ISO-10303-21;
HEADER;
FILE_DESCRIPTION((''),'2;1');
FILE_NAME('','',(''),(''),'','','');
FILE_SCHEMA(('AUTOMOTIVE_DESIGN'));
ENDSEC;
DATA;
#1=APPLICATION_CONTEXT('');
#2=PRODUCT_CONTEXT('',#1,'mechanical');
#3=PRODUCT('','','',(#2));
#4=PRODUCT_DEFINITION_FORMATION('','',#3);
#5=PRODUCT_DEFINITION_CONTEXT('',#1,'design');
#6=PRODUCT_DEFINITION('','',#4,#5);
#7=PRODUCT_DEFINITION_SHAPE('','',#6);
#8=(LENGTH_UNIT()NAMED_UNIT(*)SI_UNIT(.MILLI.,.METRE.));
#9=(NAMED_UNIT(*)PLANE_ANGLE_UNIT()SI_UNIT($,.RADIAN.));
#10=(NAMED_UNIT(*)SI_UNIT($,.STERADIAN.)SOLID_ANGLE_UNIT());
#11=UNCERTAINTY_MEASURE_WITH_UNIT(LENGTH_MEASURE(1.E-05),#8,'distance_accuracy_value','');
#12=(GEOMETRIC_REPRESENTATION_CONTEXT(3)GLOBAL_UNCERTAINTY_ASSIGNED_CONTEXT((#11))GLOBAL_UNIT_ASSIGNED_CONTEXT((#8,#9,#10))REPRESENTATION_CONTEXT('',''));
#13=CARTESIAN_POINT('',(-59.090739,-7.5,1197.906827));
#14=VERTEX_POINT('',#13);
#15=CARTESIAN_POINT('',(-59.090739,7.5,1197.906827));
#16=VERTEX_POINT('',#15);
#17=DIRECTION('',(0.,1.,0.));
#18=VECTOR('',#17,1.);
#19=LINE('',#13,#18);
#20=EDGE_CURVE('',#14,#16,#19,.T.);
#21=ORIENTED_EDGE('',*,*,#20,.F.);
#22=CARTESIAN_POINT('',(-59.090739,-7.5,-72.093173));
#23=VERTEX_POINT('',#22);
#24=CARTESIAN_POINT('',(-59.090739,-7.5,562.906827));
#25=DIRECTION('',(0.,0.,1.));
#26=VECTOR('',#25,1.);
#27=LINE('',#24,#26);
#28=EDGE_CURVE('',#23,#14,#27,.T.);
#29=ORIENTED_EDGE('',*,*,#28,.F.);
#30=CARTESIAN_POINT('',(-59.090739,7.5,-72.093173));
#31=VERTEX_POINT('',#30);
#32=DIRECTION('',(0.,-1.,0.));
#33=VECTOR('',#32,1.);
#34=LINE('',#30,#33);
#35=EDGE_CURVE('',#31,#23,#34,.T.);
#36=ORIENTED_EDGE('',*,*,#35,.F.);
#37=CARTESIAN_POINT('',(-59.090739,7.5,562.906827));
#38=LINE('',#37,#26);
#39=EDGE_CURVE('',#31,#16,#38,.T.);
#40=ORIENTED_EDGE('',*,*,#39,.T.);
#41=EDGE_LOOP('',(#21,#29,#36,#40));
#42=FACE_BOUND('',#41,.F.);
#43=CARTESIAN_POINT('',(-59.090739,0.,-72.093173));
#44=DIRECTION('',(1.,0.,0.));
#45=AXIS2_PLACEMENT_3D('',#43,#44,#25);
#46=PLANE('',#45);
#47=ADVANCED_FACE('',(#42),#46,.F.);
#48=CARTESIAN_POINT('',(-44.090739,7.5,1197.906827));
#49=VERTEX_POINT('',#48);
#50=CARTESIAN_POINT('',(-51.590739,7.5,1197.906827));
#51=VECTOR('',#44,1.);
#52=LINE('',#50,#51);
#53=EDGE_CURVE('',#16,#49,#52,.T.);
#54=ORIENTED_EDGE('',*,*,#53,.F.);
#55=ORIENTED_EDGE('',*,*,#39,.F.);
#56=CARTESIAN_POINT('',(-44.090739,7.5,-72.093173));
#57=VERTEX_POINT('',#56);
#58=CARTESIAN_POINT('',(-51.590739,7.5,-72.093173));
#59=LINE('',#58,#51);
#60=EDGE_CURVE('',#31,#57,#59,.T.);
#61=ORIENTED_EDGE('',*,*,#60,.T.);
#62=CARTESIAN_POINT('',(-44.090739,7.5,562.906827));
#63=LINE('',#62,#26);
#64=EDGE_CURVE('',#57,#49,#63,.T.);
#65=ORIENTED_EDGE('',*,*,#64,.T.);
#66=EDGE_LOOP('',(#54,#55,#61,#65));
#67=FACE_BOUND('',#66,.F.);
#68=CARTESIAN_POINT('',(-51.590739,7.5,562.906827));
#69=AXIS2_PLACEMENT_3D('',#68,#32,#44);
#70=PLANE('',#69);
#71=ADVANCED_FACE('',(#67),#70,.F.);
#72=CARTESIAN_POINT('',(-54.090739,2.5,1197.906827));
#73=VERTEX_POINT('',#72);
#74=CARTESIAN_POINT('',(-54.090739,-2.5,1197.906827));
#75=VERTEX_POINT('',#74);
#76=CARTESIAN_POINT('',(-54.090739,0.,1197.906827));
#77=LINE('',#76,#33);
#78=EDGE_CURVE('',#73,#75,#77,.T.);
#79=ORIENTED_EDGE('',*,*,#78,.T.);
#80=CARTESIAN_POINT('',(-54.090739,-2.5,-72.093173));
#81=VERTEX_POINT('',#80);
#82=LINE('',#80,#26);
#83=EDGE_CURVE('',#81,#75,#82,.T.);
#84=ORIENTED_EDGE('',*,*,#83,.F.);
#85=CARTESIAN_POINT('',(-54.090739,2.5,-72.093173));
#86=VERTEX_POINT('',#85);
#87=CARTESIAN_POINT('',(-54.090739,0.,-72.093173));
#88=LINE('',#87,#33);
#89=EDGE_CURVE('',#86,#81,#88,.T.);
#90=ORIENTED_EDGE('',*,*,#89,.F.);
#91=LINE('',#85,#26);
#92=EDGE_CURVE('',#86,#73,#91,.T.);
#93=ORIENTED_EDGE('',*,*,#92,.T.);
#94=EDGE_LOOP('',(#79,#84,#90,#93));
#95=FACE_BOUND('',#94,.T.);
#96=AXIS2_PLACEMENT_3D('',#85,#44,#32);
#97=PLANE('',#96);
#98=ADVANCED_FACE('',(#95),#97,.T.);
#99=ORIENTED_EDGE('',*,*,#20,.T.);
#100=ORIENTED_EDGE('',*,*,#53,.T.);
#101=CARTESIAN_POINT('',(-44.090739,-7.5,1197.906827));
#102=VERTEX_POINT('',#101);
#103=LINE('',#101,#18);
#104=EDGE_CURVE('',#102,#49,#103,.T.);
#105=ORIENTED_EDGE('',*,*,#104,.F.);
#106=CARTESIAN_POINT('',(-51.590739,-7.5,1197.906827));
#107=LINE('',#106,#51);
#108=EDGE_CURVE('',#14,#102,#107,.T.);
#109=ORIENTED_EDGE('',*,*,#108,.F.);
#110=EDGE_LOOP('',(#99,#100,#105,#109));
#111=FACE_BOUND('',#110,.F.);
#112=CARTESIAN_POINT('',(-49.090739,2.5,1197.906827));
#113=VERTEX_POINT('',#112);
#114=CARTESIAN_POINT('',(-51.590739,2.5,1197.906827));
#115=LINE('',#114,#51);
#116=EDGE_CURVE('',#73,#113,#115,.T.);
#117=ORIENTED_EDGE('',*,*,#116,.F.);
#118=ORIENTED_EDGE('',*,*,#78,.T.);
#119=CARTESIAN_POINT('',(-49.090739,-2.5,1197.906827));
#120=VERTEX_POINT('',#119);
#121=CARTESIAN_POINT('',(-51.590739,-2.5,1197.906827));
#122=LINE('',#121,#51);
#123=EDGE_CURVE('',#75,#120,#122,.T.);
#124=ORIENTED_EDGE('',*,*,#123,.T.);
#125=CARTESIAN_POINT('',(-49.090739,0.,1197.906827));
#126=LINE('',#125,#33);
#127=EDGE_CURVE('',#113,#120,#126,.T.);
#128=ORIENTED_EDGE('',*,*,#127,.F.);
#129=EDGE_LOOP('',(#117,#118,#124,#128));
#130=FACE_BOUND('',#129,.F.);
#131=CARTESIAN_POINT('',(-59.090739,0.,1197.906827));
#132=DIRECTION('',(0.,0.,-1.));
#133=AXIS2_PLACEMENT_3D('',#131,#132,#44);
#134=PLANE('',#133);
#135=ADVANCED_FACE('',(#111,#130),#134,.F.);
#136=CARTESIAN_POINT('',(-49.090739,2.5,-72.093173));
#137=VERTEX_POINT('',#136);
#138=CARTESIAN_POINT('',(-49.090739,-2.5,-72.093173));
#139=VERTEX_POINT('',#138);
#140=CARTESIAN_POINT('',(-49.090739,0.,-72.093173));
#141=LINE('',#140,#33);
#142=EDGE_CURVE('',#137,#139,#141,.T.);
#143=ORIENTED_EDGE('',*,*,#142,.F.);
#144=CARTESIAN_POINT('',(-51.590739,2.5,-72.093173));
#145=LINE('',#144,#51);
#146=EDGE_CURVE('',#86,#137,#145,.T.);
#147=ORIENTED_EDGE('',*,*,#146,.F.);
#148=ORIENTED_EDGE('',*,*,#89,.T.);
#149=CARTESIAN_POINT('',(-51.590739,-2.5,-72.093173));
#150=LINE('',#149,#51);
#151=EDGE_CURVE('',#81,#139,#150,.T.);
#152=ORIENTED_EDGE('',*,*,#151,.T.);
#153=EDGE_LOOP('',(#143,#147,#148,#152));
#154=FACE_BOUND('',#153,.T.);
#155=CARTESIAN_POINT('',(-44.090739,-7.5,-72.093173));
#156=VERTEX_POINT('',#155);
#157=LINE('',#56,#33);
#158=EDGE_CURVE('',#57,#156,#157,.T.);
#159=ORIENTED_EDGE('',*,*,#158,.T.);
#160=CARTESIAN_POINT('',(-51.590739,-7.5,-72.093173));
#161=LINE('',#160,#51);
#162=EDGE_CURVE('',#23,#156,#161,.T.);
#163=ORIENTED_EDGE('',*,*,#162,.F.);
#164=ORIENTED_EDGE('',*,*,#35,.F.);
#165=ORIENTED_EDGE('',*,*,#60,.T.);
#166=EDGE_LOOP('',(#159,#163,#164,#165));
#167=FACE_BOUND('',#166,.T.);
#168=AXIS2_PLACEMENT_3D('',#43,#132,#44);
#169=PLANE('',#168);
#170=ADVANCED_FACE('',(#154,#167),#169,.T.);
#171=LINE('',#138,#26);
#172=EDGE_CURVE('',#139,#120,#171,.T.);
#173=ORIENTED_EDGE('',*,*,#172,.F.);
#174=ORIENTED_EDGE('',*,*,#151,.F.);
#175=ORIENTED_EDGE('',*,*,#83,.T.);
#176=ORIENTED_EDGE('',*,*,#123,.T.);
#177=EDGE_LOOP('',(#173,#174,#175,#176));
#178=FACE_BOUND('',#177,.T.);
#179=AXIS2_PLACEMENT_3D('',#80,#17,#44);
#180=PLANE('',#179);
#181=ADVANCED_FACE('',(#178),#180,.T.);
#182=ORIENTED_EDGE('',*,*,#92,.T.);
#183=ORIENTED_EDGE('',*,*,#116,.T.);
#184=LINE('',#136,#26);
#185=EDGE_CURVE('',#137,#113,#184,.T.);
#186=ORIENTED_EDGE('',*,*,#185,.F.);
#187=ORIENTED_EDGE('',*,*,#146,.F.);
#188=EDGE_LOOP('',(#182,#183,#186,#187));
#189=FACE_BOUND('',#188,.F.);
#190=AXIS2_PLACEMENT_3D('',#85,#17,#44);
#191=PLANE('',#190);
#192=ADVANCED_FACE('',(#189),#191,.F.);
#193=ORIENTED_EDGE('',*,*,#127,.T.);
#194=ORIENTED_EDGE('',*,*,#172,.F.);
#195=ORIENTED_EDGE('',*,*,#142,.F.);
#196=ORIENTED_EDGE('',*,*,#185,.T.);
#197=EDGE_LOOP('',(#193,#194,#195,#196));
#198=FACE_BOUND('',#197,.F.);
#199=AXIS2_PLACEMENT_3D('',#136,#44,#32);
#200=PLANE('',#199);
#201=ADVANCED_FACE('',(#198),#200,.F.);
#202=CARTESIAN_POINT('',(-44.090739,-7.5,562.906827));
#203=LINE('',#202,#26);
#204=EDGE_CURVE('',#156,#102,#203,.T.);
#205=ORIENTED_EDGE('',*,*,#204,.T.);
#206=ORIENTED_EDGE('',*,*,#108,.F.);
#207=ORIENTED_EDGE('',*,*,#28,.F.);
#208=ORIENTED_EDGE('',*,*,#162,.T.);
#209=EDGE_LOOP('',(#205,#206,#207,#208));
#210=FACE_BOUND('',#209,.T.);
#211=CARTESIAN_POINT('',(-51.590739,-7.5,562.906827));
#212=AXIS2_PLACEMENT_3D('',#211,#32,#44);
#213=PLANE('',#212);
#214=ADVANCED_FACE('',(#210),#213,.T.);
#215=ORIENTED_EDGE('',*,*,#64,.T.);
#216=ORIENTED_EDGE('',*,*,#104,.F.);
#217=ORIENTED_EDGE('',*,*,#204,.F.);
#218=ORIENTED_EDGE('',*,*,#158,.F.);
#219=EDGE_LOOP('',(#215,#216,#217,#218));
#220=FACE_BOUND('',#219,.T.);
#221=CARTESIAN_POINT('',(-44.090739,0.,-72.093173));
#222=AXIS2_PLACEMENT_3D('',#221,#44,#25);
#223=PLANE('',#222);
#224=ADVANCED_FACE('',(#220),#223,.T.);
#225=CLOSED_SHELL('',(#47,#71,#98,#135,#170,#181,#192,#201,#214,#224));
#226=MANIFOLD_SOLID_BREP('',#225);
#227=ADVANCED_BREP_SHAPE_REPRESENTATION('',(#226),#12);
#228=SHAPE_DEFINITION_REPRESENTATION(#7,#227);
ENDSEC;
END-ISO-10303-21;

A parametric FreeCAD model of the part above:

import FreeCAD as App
import Part
import Sketcher

V = App.Vector


def add_polygon(sketch, points):
    """Adds a closed chain of lines whose ends are joined by coincident constraints."""
    first, n = sketch.GeometryCount, len(points)
    for a, b in zip(points, points[1:] + points[:1]):
        sketch.addGeometry(Part.LineSegment(App.Vector(*a, 0), App.Vector(*b, 0)), False)
    for i in range(n):
        sketch.addConstraint(Sketcher.Constraint("Coincident", first + i, 2, first + (i + 1) % n, 1))

doc = App.newDocument("Part")
body = doc.addObject("PartDesign::Body", "Body")

# Sketch on XZ plane
sketch1 = body.newObject("Sketcher::SketchObject", "Sketch")
sketch1.AttachmentSupport = (doc.getObject("XZ_Plane"), [""])
sketch1.MapMode = "FlatFace"
add_polygon(sketch1, [(-59, 1198), (-59, -72), (-44, -72), (-44, 1198)])  # lines 0-3
sketch1.addConstraint([
    Sketcher.Constraint("Vertical", 0),
    Sketcher.Constraint("Horizontal", 1),
    Sketcher.Constraint("Vertical", 2),
    Sketcher.Constraint("Horizontal", 3),
    Sketcher.Constraint("DistanceX", 1, 1, 1, 2, 15.0),
    Sketcher.Constraint("DistanceY", 0, 2, 0, 1, 1270.0),
    Sketcher.Constraint("DistanceX", 0, 2, -1, 1, 59.090739),
    Sketcher.Constraint("DistanceY", 0, 2, -1, 1, 72.093173),
])
pad1 = body.newObject("PartDesign::Pad", "Pad")
pad1.Profile = sketch1
pad1.Length = 15
pad1.Midplane = True

# Sketch on XY plane
sketch2 = body.newObject("Sketcher::SketchObject", "Sketch001")
sketch2.AttachmentSupport = (doc.getObject("XY_Plane"), [""])
sketch2.MapMode = "FlatFace"
sketch2.AttachmentOffset = App.Placement(V(0, 0, -72.093173), App.Rotation())
add_polygon(sketch2, [(-54, -2), (-54, 2), (-49, 2), (-49, -2)])  # lines 0-3
sketch2.addConstraint([
    Sketcher.Constraint("Vertical", 0),
    Sketcher.Constraint("Horizontal", 1),
    Sketcher.Constraint("Vertical", 2),
    Sketcher.Constraint("Horizontal", 3),
    Sketcher.Constraint("Equal", 3, 0),
    Sketcher.Constraint("DistanceX", 1, 1, 1, 2, 5.0),
    Sketcher.Constraint("DistanceY", -1, 1, 0, 2, 2.5),
    Sketcher.Constraint("DistanceX", 0, 2, -1, 1, 54.090739),
])
pocket1 = body.newObject("PartDesign::Pocket", "Pocket")
pocket1.Profile = sketch2
pocket1.Length = 1270
pocket1.Reversed = True

doc.recompute()
